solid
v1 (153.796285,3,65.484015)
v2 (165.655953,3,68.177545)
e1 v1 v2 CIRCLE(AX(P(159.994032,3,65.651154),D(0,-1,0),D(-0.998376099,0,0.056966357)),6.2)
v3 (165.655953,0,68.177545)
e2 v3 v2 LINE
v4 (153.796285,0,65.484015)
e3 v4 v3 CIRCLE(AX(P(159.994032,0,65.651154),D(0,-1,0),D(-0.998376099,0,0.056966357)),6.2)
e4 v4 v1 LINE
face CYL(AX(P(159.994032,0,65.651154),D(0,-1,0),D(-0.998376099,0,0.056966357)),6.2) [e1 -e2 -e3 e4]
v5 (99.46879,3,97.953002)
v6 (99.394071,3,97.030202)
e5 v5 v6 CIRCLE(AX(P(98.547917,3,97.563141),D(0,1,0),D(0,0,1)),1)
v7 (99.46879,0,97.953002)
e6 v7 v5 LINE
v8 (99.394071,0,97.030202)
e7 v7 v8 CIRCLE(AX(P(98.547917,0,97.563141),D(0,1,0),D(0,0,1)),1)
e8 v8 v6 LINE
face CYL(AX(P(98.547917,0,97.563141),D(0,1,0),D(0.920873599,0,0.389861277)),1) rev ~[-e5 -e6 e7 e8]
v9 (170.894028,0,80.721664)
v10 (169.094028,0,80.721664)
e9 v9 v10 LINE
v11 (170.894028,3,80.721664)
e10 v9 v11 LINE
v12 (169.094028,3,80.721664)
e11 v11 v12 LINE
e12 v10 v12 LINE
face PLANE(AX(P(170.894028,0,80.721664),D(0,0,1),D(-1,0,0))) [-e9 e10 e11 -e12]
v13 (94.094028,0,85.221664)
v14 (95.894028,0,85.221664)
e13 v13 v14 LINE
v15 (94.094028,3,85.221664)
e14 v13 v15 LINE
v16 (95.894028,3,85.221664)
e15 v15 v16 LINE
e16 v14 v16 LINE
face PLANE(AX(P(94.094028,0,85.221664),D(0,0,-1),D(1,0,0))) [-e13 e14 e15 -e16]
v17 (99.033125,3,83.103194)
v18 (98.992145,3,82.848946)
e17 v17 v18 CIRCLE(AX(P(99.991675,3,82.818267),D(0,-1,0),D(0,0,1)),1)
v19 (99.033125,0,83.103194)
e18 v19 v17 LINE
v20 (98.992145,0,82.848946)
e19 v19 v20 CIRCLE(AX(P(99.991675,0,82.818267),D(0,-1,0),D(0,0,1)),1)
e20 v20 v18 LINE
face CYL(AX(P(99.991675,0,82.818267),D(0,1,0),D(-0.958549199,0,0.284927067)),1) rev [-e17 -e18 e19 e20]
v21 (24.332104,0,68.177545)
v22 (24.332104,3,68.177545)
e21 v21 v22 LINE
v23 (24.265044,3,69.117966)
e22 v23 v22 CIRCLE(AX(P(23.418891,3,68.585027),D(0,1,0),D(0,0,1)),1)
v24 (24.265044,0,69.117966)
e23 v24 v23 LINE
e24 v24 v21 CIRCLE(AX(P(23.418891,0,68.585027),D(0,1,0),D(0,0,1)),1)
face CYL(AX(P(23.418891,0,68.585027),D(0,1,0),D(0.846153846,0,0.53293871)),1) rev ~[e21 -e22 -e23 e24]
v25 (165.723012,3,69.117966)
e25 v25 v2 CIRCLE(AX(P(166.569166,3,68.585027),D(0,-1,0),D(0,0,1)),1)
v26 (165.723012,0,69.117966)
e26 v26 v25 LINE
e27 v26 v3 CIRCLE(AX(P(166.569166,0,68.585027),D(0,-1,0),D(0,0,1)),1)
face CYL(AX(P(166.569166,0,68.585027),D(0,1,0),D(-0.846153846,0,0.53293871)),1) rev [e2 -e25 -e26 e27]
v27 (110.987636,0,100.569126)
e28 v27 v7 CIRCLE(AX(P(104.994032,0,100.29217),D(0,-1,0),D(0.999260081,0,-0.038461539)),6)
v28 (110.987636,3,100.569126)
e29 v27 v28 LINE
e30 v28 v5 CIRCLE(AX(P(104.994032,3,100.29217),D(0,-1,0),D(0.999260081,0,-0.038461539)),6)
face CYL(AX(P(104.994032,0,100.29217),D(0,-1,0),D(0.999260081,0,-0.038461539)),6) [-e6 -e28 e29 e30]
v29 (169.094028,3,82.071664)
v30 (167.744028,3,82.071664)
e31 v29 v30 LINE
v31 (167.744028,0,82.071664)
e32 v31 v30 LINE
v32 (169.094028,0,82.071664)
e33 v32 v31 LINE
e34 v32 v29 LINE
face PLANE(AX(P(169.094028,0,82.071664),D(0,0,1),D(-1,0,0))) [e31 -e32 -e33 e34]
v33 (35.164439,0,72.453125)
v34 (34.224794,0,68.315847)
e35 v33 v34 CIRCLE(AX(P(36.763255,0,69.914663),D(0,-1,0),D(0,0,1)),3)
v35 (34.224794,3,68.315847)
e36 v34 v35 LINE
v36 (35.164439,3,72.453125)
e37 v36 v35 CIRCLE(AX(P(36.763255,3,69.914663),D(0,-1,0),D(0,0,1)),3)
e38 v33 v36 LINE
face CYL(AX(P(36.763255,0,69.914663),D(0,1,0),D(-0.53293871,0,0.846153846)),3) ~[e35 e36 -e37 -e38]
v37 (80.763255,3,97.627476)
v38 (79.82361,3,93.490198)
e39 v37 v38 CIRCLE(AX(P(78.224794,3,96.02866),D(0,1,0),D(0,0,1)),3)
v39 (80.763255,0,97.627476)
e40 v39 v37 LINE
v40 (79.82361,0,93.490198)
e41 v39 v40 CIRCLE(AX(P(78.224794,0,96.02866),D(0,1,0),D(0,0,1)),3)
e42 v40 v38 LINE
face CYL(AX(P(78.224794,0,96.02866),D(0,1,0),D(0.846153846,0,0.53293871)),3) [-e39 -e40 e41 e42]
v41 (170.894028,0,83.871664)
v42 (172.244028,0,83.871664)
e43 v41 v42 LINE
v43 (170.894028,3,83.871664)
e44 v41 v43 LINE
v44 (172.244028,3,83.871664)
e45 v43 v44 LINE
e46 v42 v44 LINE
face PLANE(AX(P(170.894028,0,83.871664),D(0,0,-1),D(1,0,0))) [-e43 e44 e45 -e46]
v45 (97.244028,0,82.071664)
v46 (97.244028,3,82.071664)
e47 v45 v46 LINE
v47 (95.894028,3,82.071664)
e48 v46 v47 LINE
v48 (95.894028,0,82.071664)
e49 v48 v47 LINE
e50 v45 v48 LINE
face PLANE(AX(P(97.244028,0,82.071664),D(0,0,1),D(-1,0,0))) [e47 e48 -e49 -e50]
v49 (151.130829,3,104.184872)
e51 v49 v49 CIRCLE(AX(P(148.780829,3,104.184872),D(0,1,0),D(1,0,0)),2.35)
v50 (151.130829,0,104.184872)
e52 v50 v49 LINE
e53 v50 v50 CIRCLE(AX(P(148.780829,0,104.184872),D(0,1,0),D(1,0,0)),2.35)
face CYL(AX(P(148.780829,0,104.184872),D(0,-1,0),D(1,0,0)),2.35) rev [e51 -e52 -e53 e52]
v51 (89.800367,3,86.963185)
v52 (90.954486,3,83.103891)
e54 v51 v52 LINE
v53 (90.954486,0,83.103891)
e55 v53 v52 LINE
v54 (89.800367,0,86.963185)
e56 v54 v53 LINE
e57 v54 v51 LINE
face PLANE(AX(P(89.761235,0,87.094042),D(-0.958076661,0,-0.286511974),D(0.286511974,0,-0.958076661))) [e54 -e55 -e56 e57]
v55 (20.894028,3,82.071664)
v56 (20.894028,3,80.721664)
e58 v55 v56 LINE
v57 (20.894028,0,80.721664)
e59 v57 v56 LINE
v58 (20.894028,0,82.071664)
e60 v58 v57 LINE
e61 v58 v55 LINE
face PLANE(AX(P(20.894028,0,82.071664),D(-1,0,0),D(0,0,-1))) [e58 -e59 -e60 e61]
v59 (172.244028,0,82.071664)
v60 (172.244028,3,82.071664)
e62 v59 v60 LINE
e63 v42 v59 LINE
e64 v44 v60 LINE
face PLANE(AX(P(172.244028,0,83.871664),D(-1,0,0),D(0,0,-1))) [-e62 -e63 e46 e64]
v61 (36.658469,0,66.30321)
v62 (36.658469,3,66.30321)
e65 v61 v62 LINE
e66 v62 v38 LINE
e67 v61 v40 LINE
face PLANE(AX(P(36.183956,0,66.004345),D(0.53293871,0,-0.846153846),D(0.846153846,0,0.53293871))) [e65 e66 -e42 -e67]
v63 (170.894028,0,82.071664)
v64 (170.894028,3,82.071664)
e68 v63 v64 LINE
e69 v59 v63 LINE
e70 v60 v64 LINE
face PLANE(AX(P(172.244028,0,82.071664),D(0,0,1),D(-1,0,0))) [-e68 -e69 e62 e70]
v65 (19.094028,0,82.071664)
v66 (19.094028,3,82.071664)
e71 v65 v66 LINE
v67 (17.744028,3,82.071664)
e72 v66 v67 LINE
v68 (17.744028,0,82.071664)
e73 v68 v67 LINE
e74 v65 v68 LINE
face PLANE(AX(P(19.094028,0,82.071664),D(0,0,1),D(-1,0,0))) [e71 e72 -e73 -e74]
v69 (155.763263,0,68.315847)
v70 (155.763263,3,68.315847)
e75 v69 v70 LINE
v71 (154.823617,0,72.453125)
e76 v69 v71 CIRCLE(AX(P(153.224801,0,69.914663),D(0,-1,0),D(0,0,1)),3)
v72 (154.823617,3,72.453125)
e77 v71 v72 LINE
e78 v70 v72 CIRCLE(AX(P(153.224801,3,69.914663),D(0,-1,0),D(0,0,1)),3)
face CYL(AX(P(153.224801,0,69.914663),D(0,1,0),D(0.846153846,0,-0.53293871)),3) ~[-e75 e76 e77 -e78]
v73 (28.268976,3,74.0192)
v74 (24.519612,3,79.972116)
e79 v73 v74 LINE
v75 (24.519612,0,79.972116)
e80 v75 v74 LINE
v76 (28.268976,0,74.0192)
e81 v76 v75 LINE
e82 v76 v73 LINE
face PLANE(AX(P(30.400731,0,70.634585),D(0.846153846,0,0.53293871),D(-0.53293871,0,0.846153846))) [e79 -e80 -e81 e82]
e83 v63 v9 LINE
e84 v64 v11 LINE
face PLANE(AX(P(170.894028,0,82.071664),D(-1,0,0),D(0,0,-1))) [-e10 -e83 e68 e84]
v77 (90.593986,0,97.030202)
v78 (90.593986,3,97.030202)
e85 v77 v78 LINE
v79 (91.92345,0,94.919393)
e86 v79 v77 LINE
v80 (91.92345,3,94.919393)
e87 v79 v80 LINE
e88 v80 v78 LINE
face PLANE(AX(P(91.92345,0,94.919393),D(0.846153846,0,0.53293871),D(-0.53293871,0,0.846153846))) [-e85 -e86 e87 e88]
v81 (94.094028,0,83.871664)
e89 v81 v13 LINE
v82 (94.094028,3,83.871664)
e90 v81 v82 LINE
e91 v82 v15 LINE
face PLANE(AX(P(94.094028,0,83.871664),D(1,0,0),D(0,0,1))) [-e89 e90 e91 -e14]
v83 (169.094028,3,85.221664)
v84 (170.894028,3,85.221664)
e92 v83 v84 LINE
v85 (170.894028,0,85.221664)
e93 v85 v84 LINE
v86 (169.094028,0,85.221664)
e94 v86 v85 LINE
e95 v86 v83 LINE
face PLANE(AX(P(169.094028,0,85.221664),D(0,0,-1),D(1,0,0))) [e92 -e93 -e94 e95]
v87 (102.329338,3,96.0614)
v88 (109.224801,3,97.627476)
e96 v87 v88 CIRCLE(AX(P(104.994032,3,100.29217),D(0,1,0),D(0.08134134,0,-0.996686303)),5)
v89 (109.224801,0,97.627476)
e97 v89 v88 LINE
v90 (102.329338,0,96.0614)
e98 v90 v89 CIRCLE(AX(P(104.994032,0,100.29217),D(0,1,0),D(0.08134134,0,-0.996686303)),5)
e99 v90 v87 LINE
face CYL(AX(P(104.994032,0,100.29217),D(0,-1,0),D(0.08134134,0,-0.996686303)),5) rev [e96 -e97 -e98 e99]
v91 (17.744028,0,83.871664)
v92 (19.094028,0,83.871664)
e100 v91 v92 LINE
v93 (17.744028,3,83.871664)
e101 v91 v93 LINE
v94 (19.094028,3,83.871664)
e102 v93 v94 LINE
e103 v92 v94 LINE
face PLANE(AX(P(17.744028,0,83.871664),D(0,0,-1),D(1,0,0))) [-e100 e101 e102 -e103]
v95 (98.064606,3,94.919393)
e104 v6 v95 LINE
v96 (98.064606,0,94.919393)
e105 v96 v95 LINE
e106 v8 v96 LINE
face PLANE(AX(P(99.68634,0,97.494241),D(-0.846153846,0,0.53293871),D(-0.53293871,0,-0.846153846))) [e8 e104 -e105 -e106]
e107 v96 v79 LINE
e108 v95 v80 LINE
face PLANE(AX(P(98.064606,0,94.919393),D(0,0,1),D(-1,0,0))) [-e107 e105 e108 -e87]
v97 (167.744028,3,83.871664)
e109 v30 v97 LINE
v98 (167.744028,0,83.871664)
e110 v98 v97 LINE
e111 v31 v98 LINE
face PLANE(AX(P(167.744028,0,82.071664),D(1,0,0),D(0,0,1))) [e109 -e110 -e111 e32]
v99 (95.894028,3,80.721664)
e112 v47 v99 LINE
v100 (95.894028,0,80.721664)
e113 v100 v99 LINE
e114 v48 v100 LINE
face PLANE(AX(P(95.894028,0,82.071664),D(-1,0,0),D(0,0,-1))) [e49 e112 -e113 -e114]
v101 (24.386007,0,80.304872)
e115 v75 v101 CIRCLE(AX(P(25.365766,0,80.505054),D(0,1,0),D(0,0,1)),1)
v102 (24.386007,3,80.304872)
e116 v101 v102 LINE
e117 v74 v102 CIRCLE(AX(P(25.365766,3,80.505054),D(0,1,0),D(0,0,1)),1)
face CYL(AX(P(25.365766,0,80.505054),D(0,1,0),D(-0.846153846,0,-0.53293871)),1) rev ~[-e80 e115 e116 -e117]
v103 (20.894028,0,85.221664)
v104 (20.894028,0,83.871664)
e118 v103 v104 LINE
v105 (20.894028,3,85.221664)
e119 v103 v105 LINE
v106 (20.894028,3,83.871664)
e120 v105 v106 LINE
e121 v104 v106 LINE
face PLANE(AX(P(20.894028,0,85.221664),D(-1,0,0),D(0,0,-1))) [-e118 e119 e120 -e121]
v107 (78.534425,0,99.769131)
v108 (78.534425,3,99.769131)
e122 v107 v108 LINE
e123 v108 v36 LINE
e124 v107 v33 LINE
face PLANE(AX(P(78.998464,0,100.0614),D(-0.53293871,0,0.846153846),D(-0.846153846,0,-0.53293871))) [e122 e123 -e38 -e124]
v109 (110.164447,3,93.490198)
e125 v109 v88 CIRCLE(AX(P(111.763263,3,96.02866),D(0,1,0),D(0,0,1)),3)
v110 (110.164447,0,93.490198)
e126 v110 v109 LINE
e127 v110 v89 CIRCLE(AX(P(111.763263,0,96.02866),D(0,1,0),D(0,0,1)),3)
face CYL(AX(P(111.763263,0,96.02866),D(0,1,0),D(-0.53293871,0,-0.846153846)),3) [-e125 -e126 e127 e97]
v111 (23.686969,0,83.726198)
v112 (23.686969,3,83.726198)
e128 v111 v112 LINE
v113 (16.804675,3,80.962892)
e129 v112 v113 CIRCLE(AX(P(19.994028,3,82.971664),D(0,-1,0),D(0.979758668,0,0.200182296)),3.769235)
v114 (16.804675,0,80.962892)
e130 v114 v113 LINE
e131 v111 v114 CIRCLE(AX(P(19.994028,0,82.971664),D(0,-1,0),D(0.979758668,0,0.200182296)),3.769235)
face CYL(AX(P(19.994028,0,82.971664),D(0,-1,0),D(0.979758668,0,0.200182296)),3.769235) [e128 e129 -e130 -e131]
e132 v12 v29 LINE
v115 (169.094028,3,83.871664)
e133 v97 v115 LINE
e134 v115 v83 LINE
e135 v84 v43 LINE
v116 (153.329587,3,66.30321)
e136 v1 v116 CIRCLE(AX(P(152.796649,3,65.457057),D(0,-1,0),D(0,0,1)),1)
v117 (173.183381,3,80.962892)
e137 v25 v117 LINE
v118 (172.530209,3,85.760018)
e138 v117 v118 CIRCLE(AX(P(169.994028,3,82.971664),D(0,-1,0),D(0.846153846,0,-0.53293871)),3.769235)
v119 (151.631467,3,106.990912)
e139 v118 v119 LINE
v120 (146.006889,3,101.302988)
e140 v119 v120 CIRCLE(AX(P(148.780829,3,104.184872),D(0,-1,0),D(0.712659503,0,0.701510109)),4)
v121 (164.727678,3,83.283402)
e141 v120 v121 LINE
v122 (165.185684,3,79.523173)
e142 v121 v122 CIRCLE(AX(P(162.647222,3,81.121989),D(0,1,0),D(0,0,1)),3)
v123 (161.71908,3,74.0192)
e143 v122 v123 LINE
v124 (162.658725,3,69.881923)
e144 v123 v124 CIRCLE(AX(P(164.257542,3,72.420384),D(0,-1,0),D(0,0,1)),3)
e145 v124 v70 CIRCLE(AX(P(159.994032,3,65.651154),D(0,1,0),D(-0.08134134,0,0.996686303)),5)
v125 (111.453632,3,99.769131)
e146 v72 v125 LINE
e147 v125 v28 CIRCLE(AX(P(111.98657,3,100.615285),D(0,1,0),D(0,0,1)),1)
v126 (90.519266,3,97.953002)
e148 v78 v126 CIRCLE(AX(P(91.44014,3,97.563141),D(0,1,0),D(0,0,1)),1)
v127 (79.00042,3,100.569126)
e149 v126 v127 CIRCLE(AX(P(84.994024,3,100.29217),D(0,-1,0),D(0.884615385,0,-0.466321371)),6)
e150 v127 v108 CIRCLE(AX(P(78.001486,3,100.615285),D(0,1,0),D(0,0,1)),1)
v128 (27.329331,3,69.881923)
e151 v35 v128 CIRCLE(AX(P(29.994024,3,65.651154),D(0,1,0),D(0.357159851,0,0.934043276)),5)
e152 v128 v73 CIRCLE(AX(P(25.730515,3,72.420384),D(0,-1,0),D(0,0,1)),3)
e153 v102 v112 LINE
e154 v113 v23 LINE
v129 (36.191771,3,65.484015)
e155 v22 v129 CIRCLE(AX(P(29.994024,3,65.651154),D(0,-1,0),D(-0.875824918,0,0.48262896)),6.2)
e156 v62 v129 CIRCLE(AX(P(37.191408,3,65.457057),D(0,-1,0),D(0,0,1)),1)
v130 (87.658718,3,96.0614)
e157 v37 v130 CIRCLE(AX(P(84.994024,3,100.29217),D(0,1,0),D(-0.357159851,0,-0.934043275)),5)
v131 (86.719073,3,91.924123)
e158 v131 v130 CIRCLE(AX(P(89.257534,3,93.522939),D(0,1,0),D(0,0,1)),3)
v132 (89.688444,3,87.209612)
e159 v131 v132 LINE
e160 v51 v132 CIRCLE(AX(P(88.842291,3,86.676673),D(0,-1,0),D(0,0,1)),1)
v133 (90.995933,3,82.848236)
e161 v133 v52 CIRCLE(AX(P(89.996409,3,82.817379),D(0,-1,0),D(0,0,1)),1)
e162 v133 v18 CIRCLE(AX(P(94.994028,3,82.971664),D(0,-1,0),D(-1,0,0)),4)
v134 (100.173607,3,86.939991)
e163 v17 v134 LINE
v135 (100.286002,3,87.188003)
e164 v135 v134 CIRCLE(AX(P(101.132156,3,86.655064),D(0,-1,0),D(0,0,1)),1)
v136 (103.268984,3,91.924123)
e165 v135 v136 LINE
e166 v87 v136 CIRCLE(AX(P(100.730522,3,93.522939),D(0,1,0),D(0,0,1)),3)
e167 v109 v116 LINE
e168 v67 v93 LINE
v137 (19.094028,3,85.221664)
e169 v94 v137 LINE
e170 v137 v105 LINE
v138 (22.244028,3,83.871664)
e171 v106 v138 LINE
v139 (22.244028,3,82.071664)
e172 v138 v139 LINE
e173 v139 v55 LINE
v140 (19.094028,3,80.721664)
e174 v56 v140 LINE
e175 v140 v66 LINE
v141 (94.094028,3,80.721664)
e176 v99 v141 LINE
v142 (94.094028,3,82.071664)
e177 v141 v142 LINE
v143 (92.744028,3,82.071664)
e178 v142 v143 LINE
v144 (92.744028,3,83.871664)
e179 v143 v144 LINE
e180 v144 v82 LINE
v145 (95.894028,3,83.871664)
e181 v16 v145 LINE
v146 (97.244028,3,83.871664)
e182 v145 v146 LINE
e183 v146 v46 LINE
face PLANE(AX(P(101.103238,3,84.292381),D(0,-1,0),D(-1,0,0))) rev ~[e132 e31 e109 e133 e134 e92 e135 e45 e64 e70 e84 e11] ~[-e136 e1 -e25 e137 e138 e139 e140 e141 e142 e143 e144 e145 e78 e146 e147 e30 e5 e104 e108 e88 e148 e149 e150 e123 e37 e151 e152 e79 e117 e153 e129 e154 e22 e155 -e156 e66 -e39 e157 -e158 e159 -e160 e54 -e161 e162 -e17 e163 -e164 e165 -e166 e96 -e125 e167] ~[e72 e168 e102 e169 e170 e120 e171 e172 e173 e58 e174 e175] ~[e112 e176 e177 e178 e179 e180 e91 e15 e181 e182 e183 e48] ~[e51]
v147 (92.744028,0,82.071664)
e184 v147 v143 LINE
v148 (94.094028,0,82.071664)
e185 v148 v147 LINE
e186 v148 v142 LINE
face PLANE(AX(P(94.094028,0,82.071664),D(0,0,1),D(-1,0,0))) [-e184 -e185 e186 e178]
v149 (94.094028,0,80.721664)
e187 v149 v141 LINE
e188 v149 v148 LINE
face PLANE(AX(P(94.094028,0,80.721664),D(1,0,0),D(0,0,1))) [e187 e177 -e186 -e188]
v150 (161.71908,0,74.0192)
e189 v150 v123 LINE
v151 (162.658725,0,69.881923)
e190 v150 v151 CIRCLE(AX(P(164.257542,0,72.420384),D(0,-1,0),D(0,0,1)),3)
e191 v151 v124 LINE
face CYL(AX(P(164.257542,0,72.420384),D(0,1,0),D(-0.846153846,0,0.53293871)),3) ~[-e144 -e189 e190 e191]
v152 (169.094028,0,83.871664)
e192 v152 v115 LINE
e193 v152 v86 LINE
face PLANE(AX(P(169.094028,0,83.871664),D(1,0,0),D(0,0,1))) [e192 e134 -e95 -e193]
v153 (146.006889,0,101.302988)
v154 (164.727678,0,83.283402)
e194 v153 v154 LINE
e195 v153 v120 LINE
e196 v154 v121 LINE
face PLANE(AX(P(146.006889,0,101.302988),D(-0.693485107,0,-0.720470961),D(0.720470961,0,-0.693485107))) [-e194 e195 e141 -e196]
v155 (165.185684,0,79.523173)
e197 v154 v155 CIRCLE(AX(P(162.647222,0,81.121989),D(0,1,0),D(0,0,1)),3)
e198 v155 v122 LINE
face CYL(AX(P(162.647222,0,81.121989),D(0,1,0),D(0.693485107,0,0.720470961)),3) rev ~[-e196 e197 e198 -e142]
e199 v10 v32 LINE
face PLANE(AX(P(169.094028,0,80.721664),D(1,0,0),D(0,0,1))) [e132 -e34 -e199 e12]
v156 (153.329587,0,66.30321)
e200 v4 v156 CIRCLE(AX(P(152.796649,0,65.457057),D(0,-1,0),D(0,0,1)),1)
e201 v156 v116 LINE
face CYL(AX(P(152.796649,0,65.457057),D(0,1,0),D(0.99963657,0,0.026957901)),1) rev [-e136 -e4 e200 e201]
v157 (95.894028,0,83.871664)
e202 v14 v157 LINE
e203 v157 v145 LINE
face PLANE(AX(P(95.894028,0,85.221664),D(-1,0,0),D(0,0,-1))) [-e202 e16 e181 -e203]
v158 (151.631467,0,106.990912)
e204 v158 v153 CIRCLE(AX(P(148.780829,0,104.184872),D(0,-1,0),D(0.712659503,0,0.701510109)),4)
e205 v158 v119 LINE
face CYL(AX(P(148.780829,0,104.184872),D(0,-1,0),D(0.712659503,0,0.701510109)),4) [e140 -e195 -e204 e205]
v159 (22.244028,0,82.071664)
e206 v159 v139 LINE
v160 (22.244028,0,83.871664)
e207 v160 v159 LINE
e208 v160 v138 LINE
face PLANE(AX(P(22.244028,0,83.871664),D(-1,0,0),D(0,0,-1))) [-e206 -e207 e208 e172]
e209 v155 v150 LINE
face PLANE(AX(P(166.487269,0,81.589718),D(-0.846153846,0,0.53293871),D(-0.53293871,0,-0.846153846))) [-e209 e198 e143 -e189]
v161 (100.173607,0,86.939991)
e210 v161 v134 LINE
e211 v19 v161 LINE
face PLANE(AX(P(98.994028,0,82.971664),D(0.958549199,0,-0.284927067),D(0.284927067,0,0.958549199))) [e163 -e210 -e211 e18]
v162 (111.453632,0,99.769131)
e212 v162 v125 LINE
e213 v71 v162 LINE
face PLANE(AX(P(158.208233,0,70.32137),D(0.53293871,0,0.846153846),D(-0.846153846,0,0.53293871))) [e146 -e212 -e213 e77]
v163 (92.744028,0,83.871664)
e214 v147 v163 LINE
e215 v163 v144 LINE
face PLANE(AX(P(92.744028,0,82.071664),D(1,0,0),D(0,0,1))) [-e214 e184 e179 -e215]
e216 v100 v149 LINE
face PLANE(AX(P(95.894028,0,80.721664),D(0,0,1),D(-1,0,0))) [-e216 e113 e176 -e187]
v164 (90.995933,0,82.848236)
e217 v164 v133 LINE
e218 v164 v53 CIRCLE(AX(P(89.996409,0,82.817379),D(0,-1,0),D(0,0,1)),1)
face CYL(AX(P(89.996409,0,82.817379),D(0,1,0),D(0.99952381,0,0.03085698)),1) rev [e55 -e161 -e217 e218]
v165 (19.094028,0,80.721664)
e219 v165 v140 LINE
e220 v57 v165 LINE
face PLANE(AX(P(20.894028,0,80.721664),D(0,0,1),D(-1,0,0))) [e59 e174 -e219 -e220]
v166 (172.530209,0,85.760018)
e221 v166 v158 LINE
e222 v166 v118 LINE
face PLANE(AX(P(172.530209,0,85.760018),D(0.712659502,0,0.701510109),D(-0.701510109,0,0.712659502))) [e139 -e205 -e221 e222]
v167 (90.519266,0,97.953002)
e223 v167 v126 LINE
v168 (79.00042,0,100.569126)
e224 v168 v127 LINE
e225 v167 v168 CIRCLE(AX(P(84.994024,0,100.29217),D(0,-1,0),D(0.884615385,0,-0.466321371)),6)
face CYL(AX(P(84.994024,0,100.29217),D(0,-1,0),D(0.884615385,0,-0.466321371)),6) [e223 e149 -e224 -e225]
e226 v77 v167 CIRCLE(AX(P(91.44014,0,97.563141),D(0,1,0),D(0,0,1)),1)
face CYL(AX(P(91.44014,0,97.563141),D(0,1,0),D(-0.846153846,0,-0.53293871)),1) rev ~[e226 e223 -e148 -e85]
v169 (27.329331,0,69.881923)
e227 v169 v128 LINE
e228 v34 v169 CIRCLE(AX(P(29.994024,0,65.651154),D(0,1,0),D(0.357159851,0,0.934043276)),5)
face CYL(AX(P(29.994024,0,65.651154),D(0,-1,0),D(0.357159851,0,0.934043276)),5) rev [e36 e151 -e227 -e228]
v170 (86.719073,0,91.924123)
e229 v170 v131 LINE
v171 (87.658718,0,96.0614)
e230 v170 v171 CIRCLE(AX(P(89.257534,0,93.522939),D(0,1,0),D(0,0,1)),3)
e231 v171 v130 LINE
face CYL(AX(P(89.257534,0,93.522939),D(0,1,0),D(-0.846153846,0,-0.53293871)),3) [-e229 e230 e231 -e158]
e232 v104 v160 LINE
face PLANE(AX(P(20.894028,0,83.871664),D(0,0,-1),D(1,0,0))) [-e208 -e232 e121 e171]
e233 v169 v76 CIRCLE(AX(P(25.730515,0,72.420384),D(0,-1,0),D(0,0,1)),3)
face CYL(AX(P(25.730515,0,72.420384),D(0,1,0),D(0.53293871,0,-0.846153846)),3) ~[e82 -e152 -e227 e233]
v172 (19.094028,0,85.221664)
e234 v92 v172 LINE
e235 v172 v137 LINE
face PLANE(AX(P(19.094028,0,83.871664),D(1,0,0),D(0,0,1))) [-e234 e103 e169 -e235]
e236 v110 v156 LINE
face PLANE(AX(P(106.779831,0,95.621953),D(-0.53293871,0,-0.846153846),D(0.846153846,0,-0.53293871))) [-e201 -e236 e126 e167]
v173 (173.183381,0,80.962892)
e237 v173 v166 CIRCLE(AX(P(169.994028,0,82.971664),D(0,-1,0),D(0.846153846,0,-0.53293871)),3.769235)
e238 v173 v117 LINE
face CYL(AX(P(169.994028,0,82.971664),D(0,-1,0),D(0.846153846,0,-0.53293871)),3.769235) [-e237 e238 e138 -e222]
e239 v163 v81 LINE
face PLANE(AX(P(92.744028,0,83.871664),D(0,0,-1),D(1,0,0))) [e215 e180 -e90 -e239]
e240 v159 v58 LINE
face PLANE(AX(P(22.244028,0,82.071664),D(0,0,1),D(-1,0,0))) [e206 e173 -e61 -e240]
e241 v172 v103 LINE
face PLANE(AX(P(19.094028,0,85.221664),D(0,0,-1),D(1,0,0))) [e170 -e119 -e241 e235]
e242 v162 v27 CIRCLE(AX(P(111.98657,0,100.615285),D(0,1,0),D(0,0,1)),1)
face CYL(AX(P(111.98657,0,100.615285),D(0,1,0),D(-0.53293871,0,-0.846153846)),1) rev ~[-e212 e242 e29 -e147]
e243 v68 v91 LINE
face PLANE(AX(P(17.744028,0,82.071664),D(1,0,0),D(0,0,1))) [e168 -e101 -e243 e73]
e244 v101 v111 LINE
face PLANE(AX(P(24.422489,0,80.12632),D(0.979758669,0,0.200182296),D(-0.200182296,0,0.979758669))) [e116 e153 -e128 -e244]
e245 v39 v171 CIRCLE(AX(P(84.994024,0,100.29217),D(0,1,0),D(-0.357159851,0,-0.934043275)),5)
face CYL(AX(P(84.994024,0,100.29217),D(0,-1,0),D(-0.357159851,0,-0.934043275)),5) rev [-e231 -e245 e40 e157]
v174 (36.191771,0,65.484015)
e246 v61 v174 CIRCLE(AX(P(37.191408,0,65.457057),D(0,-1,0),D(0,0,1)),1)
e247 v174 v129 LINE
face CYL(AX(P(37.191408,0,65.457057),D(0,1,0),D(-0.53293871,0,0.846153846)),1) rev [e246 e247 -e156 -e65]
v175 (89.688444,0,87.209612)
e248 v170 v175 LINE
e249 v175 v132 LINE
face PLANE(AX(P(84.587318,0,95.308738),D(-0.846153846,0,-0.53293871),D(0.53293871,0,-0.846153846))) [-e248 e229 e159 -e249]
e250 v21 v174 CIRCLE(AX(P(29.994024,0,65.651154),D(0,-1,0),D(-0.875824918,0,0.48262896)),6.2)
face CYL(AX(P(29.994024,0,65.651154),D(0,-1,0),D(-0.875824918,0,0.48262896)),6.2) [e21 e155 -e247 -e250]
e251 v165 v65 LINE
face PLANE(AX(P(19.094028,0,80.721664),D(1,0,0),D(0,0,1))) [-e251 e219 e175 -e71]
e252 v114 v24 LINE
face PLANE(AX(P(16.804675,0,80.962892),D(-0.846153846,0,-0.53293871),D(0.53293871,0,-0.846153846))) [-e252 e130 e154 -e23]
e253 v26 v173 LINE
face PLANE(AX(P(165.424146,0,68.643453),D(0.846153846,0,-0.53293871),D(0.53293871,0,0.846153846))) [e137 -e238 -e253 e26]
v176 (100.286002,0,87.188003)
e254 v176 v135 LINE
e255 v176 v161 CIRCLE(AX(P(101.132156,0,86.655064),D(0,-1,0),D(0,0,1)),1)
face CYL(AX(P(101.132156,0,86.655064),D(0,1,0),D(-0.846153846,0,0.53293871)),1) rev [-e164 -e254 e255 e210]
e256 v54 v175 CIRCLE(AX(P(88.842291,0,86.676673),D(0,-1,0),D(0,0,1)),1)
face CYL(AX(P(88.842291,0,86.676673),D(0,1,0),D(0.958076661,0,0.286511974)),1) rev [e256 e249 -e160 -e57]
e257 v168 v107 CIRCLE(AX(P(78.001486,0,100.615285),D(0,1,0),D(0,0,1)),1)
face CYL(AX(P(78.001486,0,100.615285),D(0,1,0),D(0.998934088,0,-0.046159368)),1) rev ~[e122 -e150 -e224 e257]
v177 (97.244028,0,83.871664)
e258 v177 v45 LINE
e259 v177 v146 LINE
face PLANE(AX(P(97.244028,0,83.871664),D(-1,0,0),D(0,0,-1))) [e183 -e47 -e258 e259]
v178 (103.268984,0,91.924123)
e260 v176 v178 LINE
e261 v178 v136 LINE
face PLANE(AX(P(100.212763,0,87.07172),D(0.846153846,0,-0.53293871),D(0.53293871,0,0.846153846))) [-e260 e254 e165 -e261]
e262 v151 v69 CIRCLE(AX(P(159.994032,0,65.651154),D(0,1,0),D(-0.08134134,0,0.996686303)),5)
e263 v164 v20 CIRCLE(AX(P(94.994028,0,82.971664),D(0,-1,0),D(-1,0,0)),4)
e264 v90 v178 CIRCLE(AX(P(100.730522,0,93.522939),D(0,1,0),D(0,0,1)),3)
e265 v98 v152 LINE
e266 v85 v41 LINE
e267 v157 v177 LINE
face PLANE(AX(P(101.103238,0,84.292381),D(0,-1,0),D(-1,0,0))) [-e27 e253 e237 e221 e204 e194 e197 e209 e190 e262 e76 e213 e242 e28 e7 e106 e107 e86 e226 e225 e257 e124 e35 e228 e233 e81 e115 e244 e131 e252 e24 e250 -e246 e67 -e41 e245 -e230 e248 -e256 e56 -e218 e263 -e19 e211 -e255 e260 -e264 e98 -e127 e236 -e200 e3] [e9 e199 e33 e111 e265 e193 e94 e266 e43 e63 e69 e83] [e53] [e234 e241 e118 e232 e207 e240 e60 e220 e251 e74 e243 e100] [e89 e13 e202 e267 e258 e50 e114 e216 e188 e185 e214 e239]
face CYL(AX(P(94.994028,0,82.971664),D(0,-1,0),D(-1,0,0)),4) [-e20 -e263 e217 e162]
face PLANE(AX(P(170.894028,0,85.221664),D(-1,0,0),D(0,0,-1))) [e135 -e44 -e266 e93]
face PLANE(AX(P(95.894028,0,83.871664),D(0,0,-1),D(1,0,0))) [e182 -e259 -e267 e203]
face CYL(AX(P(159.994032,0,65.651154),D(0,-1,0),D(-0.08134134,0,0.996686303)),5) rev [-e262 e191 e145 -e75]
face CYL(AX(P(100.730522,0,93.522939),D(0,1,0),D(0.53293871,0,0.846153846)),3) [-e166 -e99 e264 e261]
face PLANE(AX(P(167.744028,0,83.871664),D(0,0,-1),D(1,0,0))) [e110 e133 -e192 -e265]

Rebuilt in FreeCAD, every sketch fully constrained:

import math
import FreeCAD as App
import Part
import Sketcher


def edges_at(feature, points):
    """Names of the edges that pass closest to the given points."""
    edges = feature.Shape.Edges
    near = lambda p: min(range(len(edges)), key=lambda i: edges[i].distToShape(Part.Vertex(*p))[0])
    return sorted({f"Edge{near(p) + 1}" for p in points})

doc = App.newDocument("Part")
body = doc.addObject("PartDesign::Body", "Body")

# Sketch on XZ plane
sketch1 = body.newObject("Sketcher::SketchObject", "Sketch")
sketch1.AttachmentSupport = (doc.getObject("XZ_Plane"), [""])
sketch1.MapMode = "FlatFace"
sketch1.addGeometry(Part.LineSegment(App.Vector(151.631467, 106.990912, 0), App.Vector(172.530209, 85.760018, 0)), False)
sketch1.addGeometry(Part.ArcOfCircle(Part.Circle(App.Vector(169.994028, 82.971664, 0), App.Vector(0, 0, 1), 3.769235), math.radians(-32.204228), math.radians(47.711539)), False)
sketch1.addGeometry(Part.LineSegment(App.Vector(173.183381, 80.962892, 0), App.Vector(165.424146, 68.643453, 0)), False)
sketch1.addGeometry(Part.ArcOfCircle(Part.Circle(App.Vector(159.994032, 65.651154, 0), App.Vector(0, 0, 1), 6.2), math.radians(176.7343), math.radians(388.857245)), False)
sketch1.addGeometry(Part.LineSegment(App.Vector(153.8041, 66.004345, 0), App.Vector(106.779831, 95.621953, 0)), False)
sketch1.addGeometry(Part.ArcOfCircle(Part.Circle(App.Vector(104.994032, 100.29217, 0), App.Vector(0, 0, 1), 5), math.radians(-69.074125), math.radians(274.66567)), False)
sketch1.addGeometry(Part.LineSegment(App.Vector(105.400739, 95.308738, 0), App.Vector(100.212763, 87.07172, 0)), False)
sketch1.addGeometry(Part.LineSegment(App.Vector(100.212763, 87.07172, 0), App.Vector(98.994028, 82.971664, 0)), False)
sketch1.addGeometry(Part.ArcOfCircle(Part.Circle(App.Vector(94.994028, 82.971664, 0), App.Vector(0, 0, 1), 4), math.radians(180), math.radians(360)), False)
sketch1.addGeometry(Part.LineSegment(App.Vector(90.994028, 82.971664, 0), App.Vector(89.761235, 87.094042, 0)), False)
sketch1.addGeometry(Part.LineSegment(App.Vector(89.761235, 87.094042, 0), App.Vector(84.587318, 95.308738, 0)), False)
sketch1.addGeometry(Part.ArcOfCircle(Part.Circle(App.Vector(84.994024, 100.29217, 0), App.Vector(0, 0, 1), 5), math.radians(-94.66567), math.radians(249.074125)), False)
sketch1.addGeometry(Part.LineSegment(App.Vector(83.208225, 95.621953, 0), App.Vector(36.183956, 66.004345, 0)), False)
sketch1.addGeometry(Part.ArcOfCircle(Part.Circle(App.Vector(29.994024, 65.651154, 0), App.Vector(0, 0, 1), 6.2), math.radians(151.142755), math.radians(363.2657)), False)
sketch1.addGeometry(Part.LineSegment(App.Vector(24.56391, 68.643453, 0), App.Vector(16.804675, 80.962892, 0)), False)
sketch1.addGeometry(Part.ArcOfCircle(Part.Circle(App.Vector(19.994028, 82.971664, 0), App.Vector(0, 0, 1), 3.769235), math.radians(11.547619), math.radians(212.204227)), False)
sketch1.addGeometry(Part.LineSegment(App.Vector(23.686969, 83.726198, 0), App.Vector(24.422489, 80.12632, 0)), False)
sketch1.addGeometry(Part.LineSegment(App.Vector(24.422489, 80.12632, 0), App.Vector(30.400731, 70.634585, 0)), False)
sketch1.addGeometry(Part.ArcOfCircle(Part.Circle(App.Vector(29.994024, 65.651154, 0), App.Vector(0, 0, 1), 5), math.radians(85.33433), math.radians(429.074125)), False)
sketch1.addGeometry(Part.LineSegment(App.Vector(31.779824, 70.32137, 0), App.Vector(78.998464, 100.0614, 0)), False)
sketch1.addGeometry(Part.ArcOfCircle(Part.Circle(App.Vector(84.994024, 100.29217, 0), App.Vector(0, 0, 1), 6), math.radians(-27.795772), math.radians(182.204228)), False)
sketch1.addGeometry(Part.LineSegment(App.Vector(90.301717, 97.494241, 0), App.Vector(91.92345, 94.919393, 0)), False)
sketch1.addGeometry(Part.LineSegment(App.Vector(91.92345, 94.919393, 0), App.Vector(98.064606, 94.919393, 0)), False)
sketch1.addGeometry(Part.LineSegment(App.Vector(98.064606, 94.919393, 0), App.Vector(99.68634, 97.494241, 0)), False)
sketch1.addGeometry(Part.ArcOfCircle(Part.Circle(App.Vector(104.994032, 100.29217, 0), App.Vector(0, 0, 1), 6), math.radians(-2.204228), math.radians(207.795772)), False)
sketch1.addGeometry(Part.LineSegment(App.Vector(110.989592, 100.0614, 0), App.Vector(158.208233, 70.32137, 0)), False)
sketch1.addGeometry(Part.ArcOfCircle(Part.Circle(App.Vector(159.994032, 65.651154, 0), App.Vector(0, 0, 1), 5), math.radians(110.925875), math.radians(454.66567)), False)
sketch1.addGeometry(Part.LineSegment(App.Vector(159.587325, 70.634585, 0), App.Vector(166.487269, 81.589718, 0)), False)
sketch1.addGeometry(Part.LineSegment(App.Vector(166.487269, 81.589718, 0), App.Vector(146.006889, 101.302988, 0)), False)
sketch1.addGeometry(Part.ArcOfCircle(Part.Circle(App.Vector(148.780829, 104.184872, 0), App.Vector(0, 0, 1), 4), math.radians(44.548286), math.radians(226.093378)), False)
sketch1.addGeometry(Part.Circle(App.Vector(148.780829, 104.184872, 0), App.Vector(0, 0, 1), 2.35), False)
sketch1.addGeometry(Part.LineSegment(App.Vector(167.744028, 82.071664, 0), App.Vector(169.094028, 82.071664, 0)), False)
sketch1.addGeometry(Part.LineSegment(App.Vector(169.094028, 82.071664, 0), App.Vector(169.094028, 80.721664, 0)), False)
sketch1.addGeometry(Part.LineSegment(App.Vector(169.094028, 80.721664, 0), App.Vector(170.894028, 80.721664, 0)), False)
sketch1.addGeometry(Part.LineSegment(App.Vector(170.894028, 80.721664, 0), App.Vector(170.894028, 82.071664, 0)), False)
sketch1.addGeometry(Part.LineSegment(App.Vector(170.894028, 82.071664, 0), App.Vector(172.244028, 82.071664, 0)), False)
sketch1.addGeometry(Part.LineSegment(App.Vector(172.244028, 82.071664, 0), App.Vector(172.244028, 83.871664, 0)), False)
sketch1.addGeometry(Part.LineSegment(App.Vector(172.244028, 83.871664, 0), App.Vector(170.894028, 83.871664, 0)), False)
sketch1.addGeometry(Part.LineSegment(App.Vector(170.894028, 83.871664, 0), App.Vector(170.894028, 85.221664, 0)), False)
sketch1.addGeometry(Part.LineSegment(App.Vector(170.894028, 85.221664, 0), App.Vector(169.094028, 85.221664, 0)), False)
sketch1.addGeometry(Part.LineSegment(App.Vector(169.094028, 85.221664, 0), App.Vector(169.094028, 83.871664, 0)), False)
sketch1.addGeometry(Part.LineSegment(App.Vector(169.094028, 83.871664, 0), App.Vector(167.744028, 83.871664, 0)), False)
sketch1.addGeometry(Part.LineSegment(App.Vector(167.744028, 83.871664, 0), App.Vector(167.744028, 82.071664, 0)), False)
sketch1.addGeometry(Part.LineSegment(App.Vector(92.744028, 82.071664, 0), App.Vector(94.094028, 82.071664, 0)), False)
sketch1.addGeometry(Part.LineSegment(App.Vector(94.094028, 82.071664, 0), App.Vector(94.094028, 80.721664, 0)), False)
sketch1.addGeometry(Part.LineSegment(App.Vector(94.094028, 80.721664, 0), App.Vector(95.894028, 80.721664, 0)), False)
sketch1.addGeometry(Part.LineSegment(App.Vector(95.894028, 80.721664, 0), App.Vector(95.894028, 82.071664, 0)), False)
sketch1.addGeometry(Part.LineSegment(App.Vector(95.894028, 82.071664, 0), App.Vector(97.244028, 82.071664, 0)), False)
sketch1.addGeometry(Part.LineSegment(App.Vector(97.244028, 82.071664, 0), App.Vector(97.244028, 83.871664, 0)), False)
sketch1.addGeometry(Part.LineSegment(App.Vector(97.244028, 83.871664, 0), App.Vector(95.894028, 83.871664, 0)), False)
sketch1.addGeometry(Part.LineSegment(App.Vector(95.894028, 83.871664, 0), App.Vector(95.894028, 85.221664, 0)), False)
sketch1.addGeometry(Part.LineSegment(App.Vector(95.894028, 85.221664, 0), App.Vector(94.094028, 85.221664, 0)), False)
sketch1.addGeometry(Part.LineSegment(App.Vector(94.094028, 85.221664, 0), App.Vector(94.094028, 83.871664, 0)), False)
sketch1.addGeometry(Part.LineSegment(App.Vector(94.094028, 83.871664, 0), App.Vector(92.744028, 83.871664, 0)), False)
sketch1.addGeometry(Part.LineSegment(App.Vector(92.744028, 83.871664, 0), App.Vector(92.744028, 82.071664, 0)), False)
sketch1.addGeometry(Part.LineSegment(App.Vector(17.744028, 82.071664, 0), App.Vector(19.094028, 82.071664, 0)), False)
sketch1.addGeometry(Part.LineSegment(App.Vector(19.094028, 82.071664, 0), App.Vector(19.094028, 80.721664, 0)), False)
sketch1.addGeometry(Part.LineSegment(App.Vector(19.094028, 80.721664, 0), App.Vector(20.894028, 80.721664, 0)), False)
sketch1.addGeometry(Part.LineSegment(App.Vector(20.894028, 80.721664, 0), App.Vector(20.894028, 82.071664, 0)), False)
sketch1.addGeometry(Part.LineSegment(App.Vector(20.894028, 82.071664, 0), App.Vector(22.244028, 82.071664, 0)), False)
sketch1.addGeometry(Part.LineSegment(App.Vector(22.244028, 82.071664, 0), App.Vector(22.244028, 83.871664, 0)), False)
sketch1.addGeometry(Part.LineSegment(App.Vector(22.244028, 83.871664, 0), App.Vector(20.894028, 83.871664, 0)), False)
sketch1.addGeometry(Part.LineSegment(App.Vector(20.894028, 83.871664, 0), App.Vector(20.894028, 85.221664, 0)), False)
sketch1.addGeometry(Part.LineSegment(App.Vector(20.894028, 85.221664, 0), App.Vector(19.094028, 85.221664, 0)), False)
sketch1.addGeometry(Part.LineSegment(App.Vector(19.094028, 85.221664, 0), App.Vector(19.094028, 83.871664, 0)), False)
sketch1.addGeometry(Part.LineSegment(App.Vector(19.094028, 83.871664, 0), App.Vector(17.744028, 83.871664, 0)), False)
sketch1.addGeometry(Part.LineSegment(App.Vector(17.744028, 83.871664, 0), App.Vector(17.744028, 82.071664, 0)), False)
sketch1.addConstraint(Sketcher.Constraint("Coincident", 0, 2, 1, 2))
sketch1.addConstraint(Sketcher.Constraint("Tangent", 1, 1, 2, 1))
sketch1.addConstraint(Sketcher.Constraint("Coincident", 2, 2, 3, 2))
sketch1.addConstraint(Sketcher.Constraint("Coincident", 3, 1, 4, 1))
sketch1.addConstraint(Sketcher.Constraint("Coincident", 4, 2, 5, 1))
sketch1.addConstraint(Sketcher.Constraint("Coincident", 5, 2, 6, 1))
sketch1.addConstraint(Sketcher.Constraint("Coincident", 6, 2, 7, 1))
sketch1.addConstraint(Sketcher.Constraint("Coincident", 7, 2, 8, 2))
sketch1.addConstraint(Sketcher.Constraint("Coincident", 8, 1, 9, 1))
sketch1.addConstraint(Sketcher.Constraint("Coincident", 9, 2, 10, 1))
sketch1.addConstraint(Sketcher.Constraint("Coincident", 10, 2, 11, 1))
sketch1.addConstraint(Sketcher.Constraint("Coincident", 11, 2, 12, 1))
sketch1.addConstraint(Sketcher.Constraint("Coincident", 12, 2, 13, 2))
sketch1.addConstraint(Sketcher.Constraint("Coincident", 13, 1, 14, 1))
sketch1.addConstraint(Sketcher.Constraint("Tangent", 14, 2, 15, 2))
sketch1.addConstraint(Sketcher.Constraint("Tangent", 15, 1, 16, 1))
sketch1.addConstraint(Sketcher.Constraint("Coincident", 16, 2, 17, 1))
sketch1.addConstraint(Sketcher.Constraint("Coincident", 17, 2, 18, 1))
sketch1.addConstraint(Sketcher.Constraint("Coincident", 18, 2, 19, 1))
sketch1.addConstraint(Sketcher.Constraint("Coincident", 19, 2, 20, 2))
sketch1.addConstraint(Sketcher.Constraint("Coincident", 20, 1, 21, 1))
sketch1.addConstraint(Sketcher.Constraint("Coincident", 21, 2, 22, 1))
sketch1.addConstraint(Sketcher.Constraint("Coincident", 22, 2, 23, 1))
sketch1.addConstraint(Sketcher.Constraint("Coincident", 23, 2, 24, 2))
sketch1.addConstraint(Sketcher.Constraint("Coincident", 24, 1, 25, 1))
sketch1.addConstraint(Sketcher.Constraint("Coincident", 25, 2, 26, 1))
sketch1.addConstraint(Sketcher.Constraint("Coincident", 26, 2, 27, 1))
sketch1.addConstraint(Sketcher.Constraint("Coincident", 27, 2, 28, 1))
sketch1.addConstraint(Sketcher.Constraint("Tangent", 28, 2, 29, 2))
sketch1.addConstraint(Sketcher.Constraint("Tangent", 29, 1, 0, 1))
sketch1.addConstraint(Sketcher.Constraint("Coincident", 31, 2, 32, 1))
sketch1.addConstraint(Sketcher.Constraint("Coincident", 32, 2, 33, 1))
sketch1.addConstraint(Sketcher.Constraint("Coincident", 33, 2, 34, 1))
sketch1.addConstraint(Sketcher.Constraint("Coincident", 34, 2, 35, 1))
sketch1.addConstraint(Sketcher.Constraint("Coincident", 35, 2, 36, 1))
sketch1.addConstraint(Sketcher.Constraint("Coincident", 36, 2, 37, 1))
sketch1.addConstraint(Sketcher.Constraint("Coincident", 37, 2, 38, 1))
sketch1.addConstraint(Sketcher.Constraint("Coincident", 38, 2, 39, 1))
sketch1.addConstraint(Sketcher.Constraint("Coincident", 39, 2, 40, 1))
sketch1.addConstraint(Sketcher.Constraint("Coincident", 40, 2, 41, 1))
sketch1.addConstraint(Sketcher.Constraint("Coincident", 41, 2, 42, 1))
sketch1.addConstraint(Sketcher.Constraint("Coincident", 42, 2, 31, 1))
sketch1.addConstraint(Sketcher.Constraint("Coincident", 43, 2, 44, 1))
sketch1.addConstraint(Sketcher.Constraint("Coincident", 44, 2, 45, 1))
sketch1.addConstraint(Sketcher.Constraint("Coincident", 45, 2, 46, 1))
sketch1.addConstraint(Sketcher.Constraint("Coincident", 46, 2, 47, 1))
sketch1.addConstraint(Sketcher.Constraint("Coincident", 47, 2, 48, 1))
sketch1.addConstraint(Sketcher.Constraint("Coincident", 48, 2, 49, 1))
sketch1.addConstraint(Sketcher.Constraint("Coincident", 49, 2, 50, 1))
sketch1.addConstraint(Sketcher.Constraint("Coincident", 50, 2, 51, 1))
sketch1.addConstraint(Sketcher.Constraint("Coincident", 51, 2, 52, 1))
sketch1.addConstraint(Sketcher.Constraint("Coincident", 52, 2, 53, 1))
sketch1.addConstraint(Sketcher.Constraint("Coincident", 53, 2, 54, 1))
sketch1.addConstraint(Sketcher.Constraint("Coincident", 54, 2, 43, 1))
sketch1.addConstraint(Sketcher.Constraint("Coincident", 55, 2, 56, 1))
sketch1.addConstraint(Sketcher.Constraint("Coincident", 56, 2, 57, 1))
sketch1.addConstraint(Sketcher.Constraint("Coincident", 57, 2, 58, 1))
sketch1.addConstraint(Sketcher.Constraint("Coincident", 58, 2, 59, 1))
sketch1.addConstraint(Sketcher.Constraint("Coincident", 59, 2, 60, 1))
sketch1.addConstraint(Sketcher.Constraint("Coincident", 60, 2, 61, 1))
sketch1.addConstraint(Sketcher.Constraint("Coincident", 61, 2, 62, 1))
sketch1.addConstraint(Sketcher.Constraint("Coincident", 62, 2, 63, 1))
sketch1.addConstraint(Sketcher.Constraint("Coincident", 63, 2, 64, 1))
sketch1.addConstraint(Sketcher.Constraint("Coincident", 64, 2, 65, 1))
sketch1.addConstraint(Sketcher.Constraint("Coincident", 65, 2, 66, 1))
sketch1.addConstraint(Sketcher.Constraint("Coincident", 66, 2, 55, 1))
sketch1.addConstraint(Sketcher.Constraint("Horizontal", 22))
sketch1.addConstraint(Sketcher.Constraint("Horizontal", 31))
sketch1.addConstraint(Sketcher.Constraint("Vertical", 32))
sketch1.addConstraint(Sketcher.Constraint("Horizontal", 33))
sketch1.addConstraint(Sketcher.Constraint("Vertical", 34))
sketch1.addConstraint(Sketcher.Constraint("Horizontal", 35))
sketch1.addConstraint(Sketcher.Constraint("Vertical", 36))
sketch1.addConstraint(Sketcher.Constraint("Horizontal", 37))
sketch1.addConstraint(Sketcher.Constraint("Vertical", 38))
sketch1.addConstraint(Sketcher.Constraint("Horizontal", 39))
sketch1.addConstraint(Sketcher.Constraint("Vertical", 40))
sketch1.addConstraint(Sketcher.Constraint("Horizontal", 41))
sketch1.addConstraint(Sketcher.Constraint("Vertical", 42))
sketch1.addConstraint(Sketcher.Constraint("Horizontal", 43))
sketch1.addConstraint(Sketcher.Constraint("Vertical", 44))
sketch1.addConstraint(Sketcher.Constraint("Horizontal", 45))
sketch1.addConstraint(Sketcher.Constraint("Vertical", 46))
sketch1.addConstraint(Sketcher.Constraint("Horizontal", 47))
sketch1.addConstraint(Sketcher.Constraint("Vertical", 48))
sketch1.addConstraint(Sketcher.Constraint("Horizontal", 49))
sketch1.addConstraint(Sketcher.Constraint("Vertical", 50))
sketch1.addConstraint(Sketcher.Constraint("Horizontal", 51))
sketch1.addConstraint(Sketcher.Constraint("Vertical", 52))
sketch1.addConstraint(Sketcher.Constraint("Horizontal", 53))
sketch1.addConstraint(Sketcher.Constraint("Vertical", 54))
sketch1.addConstraint(Sketcher.Constraint("Horizontal", 55))
sketch1.addConstraint(Sketcher.Constraint("Vertical", 56))
sketch1.addConstraint(Sketcher.Constraint("Horizontal", 57))
sketch1.addConstraint(Sketcher.Constraint("Vertical", 58))
sketch1.addConstraint(Sketcher.Constraint("Horizontal", 59))
sketch1.addConstraint(Sketcher.Constraint("Vertical", 60))
sketch1.addConstraint(Sketcher.Constraint("Horizontal", 61))
sketch1.addConstraint(Sketcher.Constraint("Vertical", 62))
sketch1.addConstraint(Sketcher.Constraint("Horizontal", 63))
sketch1.addConstraint(Sketcher.Constraint("Vertical", 64))
sketch1.addConstraint(Sketcher.Constraint("Horizontal", 65))
sketch1.addConstraint(Sketcher.Constraint("Vertical", 66))
sketch1.addConstraint(Sketcher.Constraint("Coincident", 18, 3, 13, 3))
sketch1.addConstraint(Sketcher.Constraint("Coincident", 20, 3, 11, 3))
sketch1.addConstraint(Sketcher.Constraint("Coincident", 24, 3, 5, 3))
sketch1.addConstraint(Sketcher.Constraint("Coincident", 26, 3, 3, 3))
sketch1.addConstraint(Sketcher.Constraint("Coincident", 30, 3, 29, 3))
sketch1.addConstraint(Sketcher.Constraint("Equal", 5, 11))
sketch1.addConstraint(Sketcher.Constraint("Equal", 3, 13))
sketch1.addConstraint(Sketcher.Constraint("Equal", 1, 15))
sketch1.addConstraint(Sketcher.Constraint("Equal", 11, 18))
sketch1.addConstraint(Sketcher.Constraint("Equal", 20, 24))
sketch1.addConstraint(Sketcher.Constraint("Equal", 18, 26))
sketch1.addConstraint(Sketcher.Constraint("Equal", 8, 29))
sketch1.addConstraint(Sketcher.Constraint("Perpendicular", 2, 4))
sketch1.addConstraint(Sketcher.Constraint("Perpendicular", 4, 6))
sketch1.addConstraint(Sketcher.Constraint("Perpendicular", 10, 12))
sketch1.addConstraint(Sketcher.Constraint("Perpendicular", 12, 14))
sketch1.addConstraint(Sketcher.Constraint("Parallel", 14, 17))
sketch1.addConstraint(Sketcher.Constraint("Perpendicular", 17, 19))
sketch1.addConstraint(Sketcher.Constraint("Perpendicular", 19, 21))
sketch1.addConstraint(Sketcher.Constraint("Parallel", 6, 23))
sketch1.addConstraint(Sketcher.Constraint("Perpendicular", 23, 25))
sketch1.addConstraint(Sketcher.Constraint("Perpendicular", 25, 27))
sketch1.addConstraint(Sketcher.Constraint("Horizontal", 1, 3, 8, 3))
sketch1.addConstraint(Sketcher.Constraint("Horizontal", 5, 3, 11, 3))
sketch1.addConstraint(Sketcher.Constraint("Horizontal", 3, 3, 13, 3))
sketch1.addConstraint(Sketcher.Constraint("Horizontal", 8, 3, 15, 3))
sketch1.addConstraint(Sketcher.Constraint("Horizontal", 15, 3, 7, 2))
sketch1.addConstraint(Sketcher.Constraint("Horizontal", 7, 2, 8, 1))
sketch1.addConstraint(Sketcher.Constraint("Horizontal", 5, 2, 10, 2))
sketch1.addConstraint(Sketcher.Constraint("Horizontal", 4, 2, 11, 2))
sketch1.addConstraint(Sketcher.Constraint("Horizontal", 3, 1, 12, 2))
sketch1.addConstraint(Sketcher.Constraint("Horizontal", 2, 2, 13, 1))
sketch1.addConstraint(Sketcher.Constraint("Horizontal", 1, 1, 14, 2))
sketch1.addConstraint(Sketcher.Constraint("Horizontal", 20, 1, 23, 2))
sketch1.addConstraint(Sketcher.Constraint("Horizontal", 19, 2, 24, 1))
sketch1.addConstraint(Sketcher.Constraint("Horizontal", 17, 2, 26, 2))
sketch1.addConstraint(Sketcher.Constraint("Horizontal", 31, 2, 34, 2))
sketch1.addConstraint(Sketcher.Constraint("Horizontal", 37, 2, 40, 2))
sketch1.addConstraint(Sketcher.Constraint("Horizontal", 42, 2, 43, 2))
sketch1.addConstraint(Sketcher.Constraint("Horizontal", 33, 2, 44, 2))
sketch1.addConstraint(Sketcher.Constraint("Horizontal", 43, 2, 46, 2))
sketch1.addConstraint(Sketcher.Constraint("Horizontal", 41, 2, 48, 2))
sketch1.addConstraint(Sketcher.Constraint("Horizontal", 39, 2, 50, 2))
sketch1.addConstraint(Sketcher.Constraint("Horizontal", 49, 2, 52, 2))
sketch1.addConstraint(Sketcher.Constraint("Horizontal", 54, 2, 55, 2))
sketch1.addConstraint(Sketcher.Constraint("Horizontal", 45, 2, 56, 2))
sketch1.addConstraint(Sketcher.Constraint("Horizontal", 55, 2, 58, 2))
sketch1.addConstraint(Sketcher.Constraint("Horizontal", 53, 2, 60, 2))
sketch1.addConstraint(Sketcher.Constraint("Horizontal", 51, 2, 62, 2))
sketch1.addConstraint(Sketcher.Constraint("Horizontal", 61, 2, 64, 2))
sketch1.addConstraint(Sketcher.Constraint("Vertical", 34, 2, 37, 2))
sketch1.addConstraint(Sketcher.Constraint("Vertical", 32, 2, 39, 2))
sketch1.addConstraint(Sketcher.Constraint("Vertical", 46, 2, 49, 2))
sketch1.addConstraint(Sketcher.Constraint("Vertical", 44, 2, 51, 2))
sketch1.addConstraint(Sketcher.Constraint("Vertical", 58, 2, 61, 2))
sketch1.addConstraint(Sketcher.Constraint("Vertical", 56, 2, 63, 2))
sketch1.addConstraint(Sketcher.Constraint("Equal", 31, 35))
sketch1.addConstraint(Sketcher.Constraint("Equal", 41, 43))
sketch1.addConstraint(Sketcher.Constraint("Equal", 39, 45))
sketch1.addConstraint(Sketcher.Constraint("Equal", 43, 47))
sketch1.addConstraint(Sketcher.Constraint("Equal", 53, 55))
sketch1.addConstraint(Sketcher.Constraint("Equal", 51, 57))
sketch1.addConstraint(Sketcher.Constraint("Equal", 55, 59))
sketch1.addConstraint(Sketcher.Constraint("Equal", 65, 32))
sketch1.addConstraint(Sketcher.Constraint("Equal", 63, 36))
sketch1.addConstraint(Sketcher.Constraint("Equal", 34, 38))
sketch1.addConstraint(Sketcher.Constraint("Radius", 5, 5.0))
sketch1.addConstraint(Sketcher.Constraint("Radius", 8, 4.0))
sketch1.addConstraint(Sketcher.Constraint("Radius", 20, 6.0))
sketch1.addConstraint(Sketcher.Constraint("Diameter", 30, 4.7))
sketch1.addConstraint(Sketcher.Constraint("Radius", 3, 6.2))
sketch1.addConstraint(Sketcher.Constraint("DistanceX", 33, 1, 33, 2, 1.8))
sketch1.addConstraint(Sketcher.Constraint("DistanceX", 31, 1, 31, 2, 1.35))
sketch1.addConstraint(Sketcher.Constraint("Radius", 1, 3.769235))
sketch1.addConstraint(Sketcher.Constraint("DistanceX", -1, 1, 3, 1, 153.8041))
sketch1.addConstraint(Sketcher.Constraint("DistanceY", -1, 1, 19, 2, 100.0614))
sketch1.addConstraint(Sketcher.Constraint("Distance", 16, 3.67425))
sketch1.addConstraint(Sketcher.Constraint("Distance", 28, 28.426379))
sketch1.addConstraint(Sketcher.Constraint("DistanceX", 22, 1, 22, 2, 6.141156))
sketch1.addConstraint(Sketcher.Constraint("DistanceX", -1, 1, 1, 3, 169.994028))
sketch1.addConstraint(Sketcher.Constraint("DistanceX", -1, 1, 3, 3, 159.994032))
sketch1.addConstraint(Sketcher.Constraint("DistanceX", -1, 1, 5, 3, 104.994032))
sketch1.addConstraint(Sketcher.Constraint("DistanceY", -1, 1, 5, 3, 100.29217))
sketch1.addConstraint(Sketcher.Constraint("DistanceX", -1, 1, 8, 3, 94.994028))
sketch1.addConstraint(Sketcher.Constraint("DistanceX", -1, 1, 15, 3, 19.994028))
sketch1.addConstraint(Sketcher.Constraint("DistanceX", -1, 1, 29, 3, 148.780829))
sketch1.addConstraint(Sketcher.Constraint("DistanceY", -1, 1, 29, 3, 104.184872))
sketch1.addConstraint(Sketcher.Constraint("DistanceX", -1, 1, 0, 2, 172.530209))
sketch1.addConstraint(Sketcher.Constraint("DistanceY", -1, 1, 0, 2, 85.760018))
sketch1.addConstraint(Sketcher.Constraint("DistanceX", -1, 1, 1, 1, 173.183381))
sketch1.addConstraint(Sketcher.Constraint("DistanceX", -1, 1, 4, 2, 106.779831))
sketch1.addConstraint(Sketcher.Constraint("DistanceX", -1, 1, 5, 2, 105.400739))
sketch1.addConstraint(Sketcher.Constraint("DistanceY", -1, 1, 6, 2, 87.07172))
sketch1.addConstraint(Sketcher.Constraint("DistanceY", -1, 1, 9, 2, 87.094042))
sketch1.addConstraint(Sketcher.Constraint("DistanceX", -1, 1, 15, 1, 23.686969))
sketch1.addConstraint(Sketcher.Constraint("DistanceY", -1, 1, 20, 1, 97.494241))
sketch1.addConstraint(Sketcher.Constraint("DistanceX", -1, 1, 31, 2, 169.094028))
sketch1.addConstraint(Sketcher.Constraint("DistanceX", -1, 1, 43, 2, 94.094028))
sketch1.addConstraint(Sketcher.Constraint("DistanceX", -1, 1, 55, 2, 19.094028))
sketch1.addConstraint(Sketcher.Constraint("DistanceY", -1, 1, 31, 2, 82.071664))
pad1 = body.newObject("PartDesign::Pad", "Pad")
pad1.Profile = sketch1
pad1.Length = 3
pad1.Reversed = True
doc.recompute()

fillet = body.newObject("PartDesign::Fillet", "Fillet")
fillet.Base = (pad1, edges_at(pad1, [
    (166.487, 1.5, 81.59),
    (159.587, 1.5, 70.635),
    (158.208, 1.5, 70.321),
    (31.78, 1.5, 70.321),
    (30.401, 1.5, 70.635),
    (83.208, 1.5, 95.622),
    (84.587, 1.5, 95.309),
    (105.401, 1.5, 95.309),
    (106.78, 1.5, 95.622),
]))
fillet.Radius = 3
doc.recompute()

fillet2 = body.newObject("PartDesign::Fillet", "Fillet001")
fillet2.Base = (fillet, edges_at(fillet, [
    (110.99, 1.5, 100.061),
    (99.686, 1.5, 97.494),
    (90.302, 1.5, 97.494),
    (78.998, 1.5, 100.061),
    (24.422, 1.5, 80.126),
    (24.564, 1.5, 68.643),
    (36.184, 1.5, 66.004),
    (89.761, 1.5, 87.094),
    (90.994, 1.5, 82.972),
    (98.994, 1.5, 82.972),
    (100.213, 1.5, 87.072),
    (153.804, 1.5, 66.004),
    (165.424, 1.5, 68.643),
]))
fillet2.Radius = 1

doc.recompute()
